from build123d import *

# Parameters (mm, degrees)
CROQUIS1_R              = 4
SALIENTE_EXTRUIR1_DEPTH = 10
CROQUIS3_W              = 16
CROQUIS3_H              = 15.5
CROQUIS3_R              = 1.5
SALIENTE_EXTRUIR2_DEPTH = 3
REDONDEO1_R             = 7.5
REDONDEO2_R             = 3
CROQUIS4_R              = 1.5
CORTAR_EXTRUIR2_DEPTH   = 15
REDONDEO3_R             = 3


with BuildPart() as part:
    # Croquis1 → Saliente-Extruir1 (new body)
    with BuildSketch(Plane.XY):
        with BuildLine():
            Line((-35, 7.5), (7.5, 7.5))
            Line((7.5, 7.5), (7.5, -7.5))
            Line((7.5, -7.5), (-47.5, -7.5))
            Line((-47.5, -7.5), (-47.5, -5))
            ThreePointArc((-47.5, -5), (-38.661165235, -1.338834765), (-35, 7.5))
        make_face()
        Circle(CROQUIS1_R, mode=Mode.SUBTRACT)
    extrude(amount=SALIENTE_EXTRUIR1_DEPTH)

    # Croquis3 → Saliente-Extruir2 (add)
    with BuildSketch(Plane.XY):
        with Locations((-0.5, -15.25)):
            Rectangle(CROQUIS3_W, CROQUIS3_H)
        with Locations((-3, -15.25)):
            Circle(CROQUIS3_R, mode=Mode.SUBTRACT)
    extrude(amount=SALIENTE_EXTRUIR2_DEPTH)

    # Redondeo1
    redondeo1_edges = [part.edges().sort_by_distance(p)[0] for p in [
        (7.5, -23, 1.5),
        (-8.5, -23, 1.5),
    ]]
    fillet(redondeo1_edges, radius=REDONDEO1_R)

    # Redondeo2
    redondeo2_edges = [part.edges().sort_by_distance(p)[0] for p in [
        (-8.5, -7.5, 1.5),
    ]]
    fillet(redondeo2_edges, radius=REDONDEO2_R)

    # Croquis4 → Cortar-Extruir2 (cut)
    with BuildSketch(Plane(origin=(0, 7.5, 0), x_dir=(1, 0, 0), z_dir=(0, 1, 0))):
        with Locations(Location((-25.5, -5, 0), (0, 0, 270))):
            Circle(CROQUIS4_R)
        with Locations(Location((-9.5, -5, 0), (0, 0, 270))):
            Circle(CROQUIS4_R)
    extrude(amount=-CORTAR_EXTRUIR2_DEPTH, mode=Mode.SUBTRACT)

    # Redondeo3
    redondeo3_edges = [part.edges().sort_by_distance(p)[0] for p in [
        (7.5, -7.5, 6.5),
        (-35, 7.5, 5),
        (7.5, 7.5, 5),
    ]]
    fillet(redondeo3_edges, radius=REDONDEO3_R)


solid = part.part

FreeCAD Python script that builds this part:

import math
import FreeCAD as App
import Part
import Sketcher

V = App.Vector
Q = App.Units.Quantity


def edges_at(feature, points):
    """Names of the edges that pass closest to the given points."""
    edges = feature.Shape.Edges
    near = lambda p: min(range(len(edges)), key=lambda i: edges[i].distToShape(Part.Vertex(*p))[0])
    return sorted({f"Edge{near(p) + 1}" for p in points})


def add_polygon(sketch, points):
    """Adds a closed chain of lines whose ends are joined by coincident constraints."""
    first, n = sketch.GeometryCount, len(points)
    for a, b in zip(points, points[1:] + points[:1]):
        sketch.addGeometry(Part.LineSegment(App.Vector(*a, 0), App.Vector(*b, 0)), False)
    for i in range(n):
        sketch.addConstraint(Sketcher.Constraint("Coincident", first + i, 2, first + (i + 1) % n, 1))

doc = App.newDocument("Part")
body = doc.addObject("PartDesign::Body", "Body")

# Sketch on XY plane
sketch1 = doc.addObject("Sketcher::SketchObject", "Sketch")
body.addObject(sketch1)
sketch1.AttachmentSupport = (doc.XY_Plane, [""])
sketch1.MapMode = "FlatFace"
sketch1.addGeometry(Part.LineSegment(V(7.5, 7.5, 0), V(-35, 7.5, 0)), False)
sketch1.addGeometry(Part.ArcOfCircle(Part.Circle(V(-47.5, 7.5, 0), V(0, 0, 1), 12.5), math.radians(-90), math.radians(0)), False)
sketch1.addGeometry(Part.LineSegment(V(-47.5, -5, 0), V(-47.5, -7.5, 0)), False)
sketch1.addGeometry(Part.LineSegment(V(-47.5, -7.5, 0), V(7.5, -7.5, 0)), False)
sketch1.addGeometry(Part.LineSegment(V(7.5, -7.5, 0), V(7.5, 7.5, 0)), False)
sketch1.addGeometry(Part.Circle(V(0, 0, 0), V(0, 0, 1), 4), False)
sketch1.addConstraint(Sketcher.Constraint("Coincident", 0, 2, 1, 2))
sketch1.addConstraint(Sketcher.Constraint("Coincident", 1, 1, 2, 1))
sketch1.addConstraint(Sketcher.Constraint("Coincident", 2, 2, 3, 1))
sketch1.addConstraint(Sketcher.Constraint("Coincident", 3, 2, 4, 1))
sketch1.addConstraint(Sketcher.Constraint("Coincident", 4, 2, 0, 1))
sketch1.addConstraint(Sketcher.Constraint("Horizontal", 0))
sketch1.addConstraint(Sketcher.Constraint("Vertical", 2))
sketch1.addConstraint(Sketcher.Constraint("Horizontal", 3))
sketch1.addConstraint(Sketcher.Constraint("Vertical", 4))
sketch1.addConstraint(Sketcher.Constraint("Coincident", 5, 3, -1, 1))
sketch1.addConstraint(Sketcher.Constraint("Horizontal", 1, 3, 0, 2))
sketch1.addConstraint(Sketcher.Constraint("Diameter", 5, Q("8 mm")))
sketch1.addConstraint(Sketcher.Constraint("Radius", 1, Q("12.5 mm")))
sketch1.addConstraint(Sketcher.Constraint("DistanceX", 3, 1, 3, 2, Q("55 mm")))
sketch1.addConstraint(Sketcher.Constraint("DistanceY", 4, 1, 4, 2, Q("15 mm")))
sketch1.addConstraint(Sketcher.Constraint("DistanceX", 0, 2, 0, 1, Q("42.5 mm")))
sketch1.addConstraint(Sketcher.Constraint("DistanceX", 0, 2, -1, 1, Q("35 mm")))
sketch1.addConstraint(Sketcher.Constraint("DistanceY", 1, 1, -1, 1, Q("5 mm")))
pad1 = doc.addObject("PartDesign::Pad", "Pad")
body.addObject(pad1)
pad1.Profile = sketch1
pad1.Length = 10

# Sketch on XY plane
sketch2 = doc.addObject("Sketcher::SketchObject", "Sketch001")
body.addObject(sketch2)
sketch2.AttachmentSupport = (doc.XY_Plane, [""])
sketch2.MapMode = "FlatFace"
add_polygon(sketch2, [(-8.5, -7.5), (-8.5, -23), (7.5, -23), (7.5, -7.5)])  # lines 0-3
sketch2.addGeometry(Part.Circle(V(-3, -15.25, 0), V(0, 0, 1), 1.5), False)  # 4
sketch2.addConstraint(Sketcher.Constraint("Vertical", 0))
sketch2.addConstraint(Sketcher.Constraint("Horizontal", 1))
sketch2.addConstraint(Sketcher.Constraint("Vertical", 2))
sketch2.addConstraint(Sketcher.Constraint("Horizontal", 3))
sketch2.addConstraint(Sketcher.Constraint("Diameter", 4, Q("3 mm")))
sketch2.addConstraint(Sketcher.Constraint("DistanceX", 1, 1, 1, 2, Q("16 mm")))
sketch2.addConstraint(Sketcher.Constraint("DistanceY", 0, 2, 0, 1, Q("15.5 mm")))
sketch2.addConstraint(Sketcher.Constraint("DistanceX", 4, 3, -1, 1, Q("3 mm")))
sketch2.addConstraint(Sketcher.Constraint("DistanceY", 0, 2, -1, 1, Q("23 mm")))
sketch2.addConstraint(Sketcher.Constraint("DistanceX", 0, 2, -1, 1, Q("8.5 mm")))
sketch2.addConstraint(Sketcher.Constraint("DistanceY", 4, 3, -1, 1, Q("15.25 mm")))
pad2 = doc.addObject("PartDesign::Pad", "Pad001")
body.addObject(pad2)
pad2.Profile = sketch2
pad2.Length = 3
doc.recompute()

fillet = doc.addObject("PartDesign::Fillet", "Fillet")
body.addObject(fillet)
fillet.Base = (pad2, edges_at(pad2, [(7.5, -23, 1.5), (-8.5, -23, 1.5)]))
fillet.Radius = 7.5
doc.recompute()

fillet2 = doc.addObject("PartDesign::Fillet", "Fillet001")
body.addObject(fillet2)
fillet2.Base = (fillet, edges_at(fillet, [(-8.5, -7.5, 1.5)]))
fillet2.Radius = 3

# Sketch on XZ plane
sketch3 = doc.addObject("Sketcher::SketchObject", "Sketch002")
body.addObject(sketch3)
sketch3.AttachmentSupport = (doc.XZ_Plane, [""])
sketch3.MapMode = "FlatFace"
sketch3.AttachmentOffset = App.Placement(V(0, 0, -7.5), App.Rotation())
sketch3.addGeometry(Part.Circle(V(-25.5, 5, 0), V(0, 0, 1), 1.5), False)
sketch3.addGeometry(Part.Circle(V(-9.5, 5, 0), V(0, 0, 1), 1.5), False)
sketch3.addConstraint(Sketcher.Constraint("Equal", 0, 1))
sketch3.addConstraint(Sketcher.Constraint("Horizontal", 0, 3, 1, 3))
sketch3.addConstraint(Sketcher.Constraint("Diameter", 0, Q("3 mm")))
sketch3.addConstraint(Sketcher.Constraint("DistanceY", -1, 1, 0, 3, Q("5 mm")))
sketch3.addConstraint(Sketcher.Constraint("DistanceX", 0, 3, 1, 3, Q("16 mm")))
sketch3.addConstraint(Sketcher.Constraint("DistanceX", 0, 3, -1, 1, Q("25.5 mm")))
pocket1 = doc.addObject("PartDesign::Pocket", "Pocket")
body.addObject(pocket1)
pocket1.Profile = sketch3
pocket1.Length = 15
pocket1.Reversed = True
doc.recompute()

fillet3 = doc.addObject("PartDesign::Fillet", "Fillet002")
body.addObject(fillet3)
fillet3.Base = (pocket1, edges_at(pocket1, [(7.5, -7.5, 6.5), (-35, 7.5, 5), (7.5, 7.5, 5)]))
fillet3.Radius = 3

doc.recompute()
